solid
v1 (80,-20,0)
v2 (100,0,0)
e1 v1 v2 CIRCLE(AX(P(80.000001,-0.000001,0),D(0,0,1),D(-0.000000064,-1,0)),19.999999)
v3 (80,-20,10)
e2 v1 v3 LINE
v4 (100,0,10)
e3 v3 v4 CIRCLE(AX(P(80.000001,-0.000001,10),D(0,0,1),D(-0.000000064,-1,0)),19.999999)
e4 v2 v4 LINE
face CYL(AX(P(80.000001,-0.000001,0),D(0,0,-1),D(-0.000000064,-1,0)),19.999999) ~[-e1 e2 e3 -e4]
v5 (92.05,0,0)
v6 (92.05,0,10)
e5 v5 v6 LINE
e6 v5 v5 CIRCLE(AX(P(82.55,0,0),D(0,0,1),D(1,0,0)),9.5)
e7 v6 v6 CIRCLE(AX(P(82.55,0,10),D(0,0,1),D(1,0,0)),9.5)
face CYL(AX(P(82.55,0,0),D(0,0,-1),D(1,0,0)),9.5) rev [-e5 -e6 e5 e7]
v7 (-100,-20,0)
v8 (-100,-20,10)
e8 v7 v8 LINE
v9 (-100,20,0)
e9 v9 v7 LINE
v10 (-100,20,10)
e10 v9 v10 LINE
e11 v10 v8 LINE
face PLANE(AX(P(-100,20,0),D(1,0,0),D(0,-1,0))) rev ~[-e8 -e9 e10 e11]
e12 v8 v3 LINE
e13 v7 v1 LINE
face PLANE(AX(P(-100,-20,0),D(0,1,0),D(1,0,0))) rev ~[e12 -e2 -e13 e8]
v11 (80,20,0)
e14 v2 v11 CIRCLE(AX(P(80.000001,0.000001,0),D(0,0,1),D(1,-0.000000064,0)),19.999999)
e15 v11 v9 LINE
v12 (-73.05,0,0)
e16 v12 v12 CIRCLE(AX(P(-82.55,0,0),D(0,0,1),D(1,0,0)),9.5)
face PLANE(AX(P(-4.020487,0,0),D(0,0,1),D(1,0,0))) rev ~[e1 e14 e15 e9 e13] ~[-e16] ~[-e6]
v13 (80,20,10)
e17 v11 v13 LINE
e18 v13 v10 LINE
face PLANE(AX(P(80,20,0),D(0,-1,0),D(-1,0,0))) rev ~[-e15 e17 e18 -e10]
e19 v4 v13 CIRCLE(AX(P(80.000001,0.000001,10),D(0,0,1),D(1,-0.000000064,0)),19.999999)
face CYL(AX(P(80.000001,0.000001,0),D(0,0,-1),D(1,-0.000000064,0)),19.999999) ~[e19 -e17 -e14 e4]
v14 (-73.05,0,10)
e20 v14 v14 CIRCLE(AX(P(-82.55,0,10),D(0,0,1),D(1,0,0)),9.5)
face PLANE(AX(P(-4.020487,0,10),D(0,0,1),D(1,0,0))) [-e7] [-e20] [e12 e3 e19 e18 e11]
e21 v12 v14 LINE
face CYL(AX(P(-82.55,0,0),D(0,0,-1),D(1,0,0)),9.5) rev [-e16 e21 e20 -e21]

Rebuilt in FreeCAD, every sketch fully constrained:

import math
import FreeCAD as App
import Part
import Sketcher

V = App.Vector
Q = App.Units.Quantity

doc = App.newDocument("Part")
body = doc.addObject("PartDesign::Body", "Body")

sketch1 = body.newObject("Sketcher::SketchObject", "Sketch")
sketch1.AttachmentSupport = (doc.getObject("XY_Plane"), [""])
sketch1.MapMode = "FlatFace"
sketch1.addGeometry(Part.LineSegment(V(-100, -20, 0), V(80, -20, 0)), False)
sketch1.addGeometry(Part.ArcOfCircle(Part.Circle(V(80, 0, 0), V(0, 0, 1), 20), math.radians(-90), math.radians(0)), False)
sketch1.addGeometry(Part.ArcOfCircle(Part.Circle(V(80, 0, 0), V(0, 0, 1), 20), math.radians(0), math.radians(90)), False)
sketch1.addGeometry(Part.LineSegment(V(80, 20, 0), V(-100, 20, 0)), False)
sketch1.addGeometry(Part.LineSegment(V(-100, 20, 0), V(-100, -20, 0)), False)
sketch1.addGeometry(Part.Circle(V(-83, 0, 0), V(0, 0, 1), 10), False)
sketch1.addGeometry(Part.Circle(V(83, 0, 0), V(0, 0, 1), 10), False)
sketch1.addConstraint(Sketcher.Constraint("Tangent", 0, 2, 1, 1))
sketch1.addConstraint(Sketcher.Constraint("Tangent", 1, 2, 2, 1))
sketch1.addConstraint(Sketcher.Constraint("Tangent", 2, 2, 3, 1))
sketch1.addConstraint(Sketcher.Constraint("Coincident", 3, 2, 4, 1))
sketch1.addConstraint(Sketcher.Constraint("Coincident", 4, 2, 0, 1))
sketch1.addConstraint(Sketcher.Constraint("Horizontal", 0))
sketch1.addConstraint(Sketcher.Constraint("Horizontal", 3))
sketch1.addConstraint(Sketcher.Constraint("Vertical", 4))
sketch1.addConstraint(Sketcher.Constraint("Equal", 1, 2))
sketch1.addConstraint(Sketcher.Constraint("Equal", 5, 6))
sketch1.addConstraint(Sketcher.Constraint("Symmetric", 5, 3, 6, 3, -1, 1))
sketch1.addConstraint(Sketcher.Constraint("PointOnObject", 1, 3, -1))
sketch1.addConstraint(Sketcher.Constraint("PointOnObject", 5, 3, -1))
sketch1.addConstraint(Sketcher.Constraint("PointOnObject", 1, 2, -1))
sketch1.addConstraint(Sketcher.Constraint("Diameter", 5, Q("19 mm")))
sketch1.addConstraint(Sketcher.Constraint("Radius", 1, Q("19.999999 mm")))
sketch1.addConstraint(Sketcher.Constraint("DistanceX", 0, 1, 0, 2, Q("180 mm")))
sketch1.addConstraint(Sketcher.Constraint("DistanceX", -1, 1, 1, 3, Q("80.000001 mm")))
sketch1.addConstraint(Sketcher.Constraint("DistanceX", 5, 3, 6, 3, Q("165.1 mm")))
pad1 = body.newObject("PartDesign::Pad", "Pad")
pad1.Profile = sketch1
pad1.Length = 10

doc.recompute()
